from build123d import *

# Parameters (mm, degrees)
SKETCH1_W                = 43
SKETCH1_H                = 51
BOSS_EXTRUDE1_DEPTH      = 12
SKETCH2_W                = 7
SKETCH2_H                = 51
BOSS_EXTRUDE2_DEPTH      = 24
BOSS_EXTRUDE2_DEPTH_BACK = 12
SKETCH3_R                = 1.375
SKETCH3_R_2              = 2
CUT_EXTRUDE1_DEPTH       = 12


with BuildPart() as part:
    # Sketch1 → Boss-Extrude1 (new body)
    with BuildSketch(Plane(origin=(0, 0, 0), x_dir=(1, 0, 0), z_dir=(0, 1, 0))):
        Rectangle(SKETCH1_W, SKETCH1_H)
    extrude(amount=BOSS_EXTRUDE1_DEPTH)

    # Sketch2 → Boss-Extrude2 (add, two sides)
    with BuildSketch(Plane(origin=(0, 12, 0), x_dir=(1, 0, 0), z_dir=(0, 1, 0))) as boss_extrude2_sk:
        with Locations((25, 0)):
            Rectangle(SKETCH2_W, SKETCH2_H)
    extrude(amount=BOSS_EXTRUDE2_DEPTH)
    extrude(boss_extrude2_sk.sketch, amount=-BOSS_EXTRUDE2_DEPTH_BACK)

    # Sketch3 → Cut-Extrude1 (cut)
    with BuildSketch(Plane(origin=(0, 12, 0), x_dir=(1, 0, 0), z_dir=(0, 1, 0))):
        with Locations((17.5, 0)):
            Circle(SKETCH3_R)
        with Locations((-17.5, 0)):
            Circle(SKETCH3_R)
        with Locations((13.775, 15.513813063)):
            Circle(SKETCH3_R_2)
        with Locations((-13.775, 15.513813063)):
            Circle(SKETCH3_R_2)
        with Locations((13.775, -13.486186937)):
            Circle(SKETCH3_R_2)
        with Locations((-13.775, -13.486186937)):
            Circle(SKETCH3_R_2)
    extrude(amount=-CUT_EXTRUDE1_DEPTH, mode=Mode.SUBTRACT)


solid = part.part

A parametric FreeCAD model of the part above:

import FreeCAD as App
import Part
import Sketcher

V = App.Vector

doc = App.newDocument("Part")
body = doc.addObject("PartDesign::Body", "Body")

# Sketch on XZ plane
sketch1 = doc.addObject("Sketcher::SketchObject", "Sketch")
body.addObject(sketch1)
sketch1.AttachmentSupport = (doc.XZ_Plane, [""])
sketch1.MapMode = "FlatFace"
sketch1.addGeometry([
    Part.LineSegment(V(-22, -26, 0), V(-22, 26, 0)),
    Part.LineSegment(V(-22, 26, 0), V(22, 26, 0)),
    Part.LineSegment(V(22, 26, 0), V(22, -26, 0)),
    Part.LineSegment(V(22, -26, 0), V(-22, -26, 0)),
], False)
sketch1.addConstraint([
    Sketcher.Constraint("Coincident", 0, 2, 1, 1),
    Sketcher.Constraint("Coincident", 1, 2, 2, 1),
    Sketcher.Constraint("Coincident", 2, 2, 3, 1),
    Sketcher.Constraint("Coincident", 3, 2, 0, 1),
    Sketcher.Constraint("Vertical", 0),
    Sketcher.Constraint("Horizontal", 1),
    Sketcher.Constraint("Vertical", 2),
    Sketcher.Constraint("Horizontal", 3),
    Sketcher.Constraint("Symmetric", 0, 2, 2, 2, -1, 1),
    Sketcher.Constraint("DistanceX", 1, 1, 1, 2, 43.0),
    Sketcher.Constraint("DistanceY", 0, 1, 0, 2, 51.0),
])
pad1 = doc.addObject("PartDesign::Pad", "Pad")
body.addObject(pad1)
pad1.Profile = sketch1
pad1.Length = 12
pad1.Reversed = True

# Sketch on XZ plane
sketch2 = doc.addObject("Sketcher::SketchObject", "Sketch001")
body.addObject(sketch2)
sketch2.AttachmentSupport = (doc.XZ_Plane, [""])
sketch2.MapMode = "FlatFace"
sketch2.AttachmentOffset = App.Placement(V(0, 0, -12), App.Rotation())
sketch2.addGeometry([
    Part.LineSegment(V(22, -26, 0), V(22, 26, 0)),
    Part.LineSegment(V(22, 26, 0), V(28, 26, 0)),
    Part.LineSegment(V(28, 26, 0), V(28, -26, 0)),
    Part.LineSegment(V(28, -26, 0), V(22, -26, 0)),
], False)
sketch2.addConstraint([
    Sketcher.Constraint("Coincident", 0, 2, 1, 1),
    Sketcher.Constraint("Coincident", 1, 2, 2, 1),
    Sketcher.Constraint("Coincident", 2, 2, 3, 1),
    Sketcher.Constraint("Coincident", 3, 2, 0, 1),
    Sketcher.Constraint("Vertical", 0),
    Sketcher.Constraint("Horizontal", 1),
    Sketcher.Constraint("Vertical", 2),
    Sketcher.Constraint("Horizontal", 3),
    Sketcher.Constraint("DistanceX", 1, 1, 1, 2, 7.0),
    Sketcher.Constraint("DistanceY", 0, 1, 0, 2, 51.0),
    Sketcher.Constraint("DistanceX", -1, 1, 0, 2, 21.5),
    Sketcher.Constraint("DistanceY", -1, 1, 0, 2, 25.5),
])
pad2 = doc.addObject("PartDesign::Pad", "Pad001")
body.addObject(pad2)
pad2.Profile = sketch2
pad2.Type = "TwoLengths"
pad2.Length = 24
pad2.Length2 = 12
pad2.Reversed = True

# Sketch on XZ plane
sketch3 = doc.addObject("Sketcher::SketchObject", "Sketch002")
body.addObject(sketch3)
sketch3.AttachmentSupport = (doc.XZ_Plane, [""])
sketch3.MapMode = "FlatFace"
sketch3.AttachmentOffset = App.Placement(V(0, 0, -12), App.Rotation())
sketch3.addGeometry([
    Part.Circle(V(17.5, 0, 0), V(0, 0, 1), 1.4),  # 0
    Part.Circle(V(-17.5, 0, 0), V(0, 0, 1), 1.4),  # 1
    Part.Circle(V(13.8, -15.5, 0), V(0, 0, 1), 2),  # 2
    Part.Circle(V(-13.8, -15.5, 0), V(0, 0, 1), 2),  # 3
    Part.Circle(V(13.8, 13.5, 0), V(0, 0, 1), 2),  # 4
    Part.Circle(V(-13.8, 13.5, 0), V(0, 0, 1), 2),  # 5
], False)
sketch3.addConstraint([
    Sketcher.Constraint("Equal", 0, 1),
    Sketcher.Constraint("Equal", 2, 3),
    Sketcher.Constraint("Equal", 3, 4),
    Sketcher.Constraint("Equal", 4, 5),
    Sketcher.Constraint("Symmetric", 0, 3, 1, 3, -1, 1),
    Sketcher.Constraint("Symmetric", 2, 3, 3, 3, -2),
    Sketcher.Constraint("Symmetric", 4, 3, 5, 3, -2),
    Sketcher.Constraint("PointOnObject", 0, 3, -1),
    Sketcher.Constraint("Vertical", 2, 3, 4, 3),
    Sketcher.Constraint("Diameter", 2, 4.0),
    Sketcher.Constraint("Diameter", 0, 2.75),
    Sketcher.Constraint("DistanceX", 1, 3, 0, 3, 35.0),
    Sketcher.Constraint("DistanceY", 2, 3, 4, 3, 29.0),
    Sketcher.Constraint("DistanceX", 3, 3, 2, 3, 27.55),
    Sketcher.Constraint("DistanceY", 2, 3, -1, 1, 15.513813),
])
pocket1 = doc.addObject("PartDesign::Pocket", "Pocket")
body.addObject(pocket1)
pocket1.Profile = sketch3
pocket1.Length = 12
pocket1.Reversed = True

doc.recompute()
